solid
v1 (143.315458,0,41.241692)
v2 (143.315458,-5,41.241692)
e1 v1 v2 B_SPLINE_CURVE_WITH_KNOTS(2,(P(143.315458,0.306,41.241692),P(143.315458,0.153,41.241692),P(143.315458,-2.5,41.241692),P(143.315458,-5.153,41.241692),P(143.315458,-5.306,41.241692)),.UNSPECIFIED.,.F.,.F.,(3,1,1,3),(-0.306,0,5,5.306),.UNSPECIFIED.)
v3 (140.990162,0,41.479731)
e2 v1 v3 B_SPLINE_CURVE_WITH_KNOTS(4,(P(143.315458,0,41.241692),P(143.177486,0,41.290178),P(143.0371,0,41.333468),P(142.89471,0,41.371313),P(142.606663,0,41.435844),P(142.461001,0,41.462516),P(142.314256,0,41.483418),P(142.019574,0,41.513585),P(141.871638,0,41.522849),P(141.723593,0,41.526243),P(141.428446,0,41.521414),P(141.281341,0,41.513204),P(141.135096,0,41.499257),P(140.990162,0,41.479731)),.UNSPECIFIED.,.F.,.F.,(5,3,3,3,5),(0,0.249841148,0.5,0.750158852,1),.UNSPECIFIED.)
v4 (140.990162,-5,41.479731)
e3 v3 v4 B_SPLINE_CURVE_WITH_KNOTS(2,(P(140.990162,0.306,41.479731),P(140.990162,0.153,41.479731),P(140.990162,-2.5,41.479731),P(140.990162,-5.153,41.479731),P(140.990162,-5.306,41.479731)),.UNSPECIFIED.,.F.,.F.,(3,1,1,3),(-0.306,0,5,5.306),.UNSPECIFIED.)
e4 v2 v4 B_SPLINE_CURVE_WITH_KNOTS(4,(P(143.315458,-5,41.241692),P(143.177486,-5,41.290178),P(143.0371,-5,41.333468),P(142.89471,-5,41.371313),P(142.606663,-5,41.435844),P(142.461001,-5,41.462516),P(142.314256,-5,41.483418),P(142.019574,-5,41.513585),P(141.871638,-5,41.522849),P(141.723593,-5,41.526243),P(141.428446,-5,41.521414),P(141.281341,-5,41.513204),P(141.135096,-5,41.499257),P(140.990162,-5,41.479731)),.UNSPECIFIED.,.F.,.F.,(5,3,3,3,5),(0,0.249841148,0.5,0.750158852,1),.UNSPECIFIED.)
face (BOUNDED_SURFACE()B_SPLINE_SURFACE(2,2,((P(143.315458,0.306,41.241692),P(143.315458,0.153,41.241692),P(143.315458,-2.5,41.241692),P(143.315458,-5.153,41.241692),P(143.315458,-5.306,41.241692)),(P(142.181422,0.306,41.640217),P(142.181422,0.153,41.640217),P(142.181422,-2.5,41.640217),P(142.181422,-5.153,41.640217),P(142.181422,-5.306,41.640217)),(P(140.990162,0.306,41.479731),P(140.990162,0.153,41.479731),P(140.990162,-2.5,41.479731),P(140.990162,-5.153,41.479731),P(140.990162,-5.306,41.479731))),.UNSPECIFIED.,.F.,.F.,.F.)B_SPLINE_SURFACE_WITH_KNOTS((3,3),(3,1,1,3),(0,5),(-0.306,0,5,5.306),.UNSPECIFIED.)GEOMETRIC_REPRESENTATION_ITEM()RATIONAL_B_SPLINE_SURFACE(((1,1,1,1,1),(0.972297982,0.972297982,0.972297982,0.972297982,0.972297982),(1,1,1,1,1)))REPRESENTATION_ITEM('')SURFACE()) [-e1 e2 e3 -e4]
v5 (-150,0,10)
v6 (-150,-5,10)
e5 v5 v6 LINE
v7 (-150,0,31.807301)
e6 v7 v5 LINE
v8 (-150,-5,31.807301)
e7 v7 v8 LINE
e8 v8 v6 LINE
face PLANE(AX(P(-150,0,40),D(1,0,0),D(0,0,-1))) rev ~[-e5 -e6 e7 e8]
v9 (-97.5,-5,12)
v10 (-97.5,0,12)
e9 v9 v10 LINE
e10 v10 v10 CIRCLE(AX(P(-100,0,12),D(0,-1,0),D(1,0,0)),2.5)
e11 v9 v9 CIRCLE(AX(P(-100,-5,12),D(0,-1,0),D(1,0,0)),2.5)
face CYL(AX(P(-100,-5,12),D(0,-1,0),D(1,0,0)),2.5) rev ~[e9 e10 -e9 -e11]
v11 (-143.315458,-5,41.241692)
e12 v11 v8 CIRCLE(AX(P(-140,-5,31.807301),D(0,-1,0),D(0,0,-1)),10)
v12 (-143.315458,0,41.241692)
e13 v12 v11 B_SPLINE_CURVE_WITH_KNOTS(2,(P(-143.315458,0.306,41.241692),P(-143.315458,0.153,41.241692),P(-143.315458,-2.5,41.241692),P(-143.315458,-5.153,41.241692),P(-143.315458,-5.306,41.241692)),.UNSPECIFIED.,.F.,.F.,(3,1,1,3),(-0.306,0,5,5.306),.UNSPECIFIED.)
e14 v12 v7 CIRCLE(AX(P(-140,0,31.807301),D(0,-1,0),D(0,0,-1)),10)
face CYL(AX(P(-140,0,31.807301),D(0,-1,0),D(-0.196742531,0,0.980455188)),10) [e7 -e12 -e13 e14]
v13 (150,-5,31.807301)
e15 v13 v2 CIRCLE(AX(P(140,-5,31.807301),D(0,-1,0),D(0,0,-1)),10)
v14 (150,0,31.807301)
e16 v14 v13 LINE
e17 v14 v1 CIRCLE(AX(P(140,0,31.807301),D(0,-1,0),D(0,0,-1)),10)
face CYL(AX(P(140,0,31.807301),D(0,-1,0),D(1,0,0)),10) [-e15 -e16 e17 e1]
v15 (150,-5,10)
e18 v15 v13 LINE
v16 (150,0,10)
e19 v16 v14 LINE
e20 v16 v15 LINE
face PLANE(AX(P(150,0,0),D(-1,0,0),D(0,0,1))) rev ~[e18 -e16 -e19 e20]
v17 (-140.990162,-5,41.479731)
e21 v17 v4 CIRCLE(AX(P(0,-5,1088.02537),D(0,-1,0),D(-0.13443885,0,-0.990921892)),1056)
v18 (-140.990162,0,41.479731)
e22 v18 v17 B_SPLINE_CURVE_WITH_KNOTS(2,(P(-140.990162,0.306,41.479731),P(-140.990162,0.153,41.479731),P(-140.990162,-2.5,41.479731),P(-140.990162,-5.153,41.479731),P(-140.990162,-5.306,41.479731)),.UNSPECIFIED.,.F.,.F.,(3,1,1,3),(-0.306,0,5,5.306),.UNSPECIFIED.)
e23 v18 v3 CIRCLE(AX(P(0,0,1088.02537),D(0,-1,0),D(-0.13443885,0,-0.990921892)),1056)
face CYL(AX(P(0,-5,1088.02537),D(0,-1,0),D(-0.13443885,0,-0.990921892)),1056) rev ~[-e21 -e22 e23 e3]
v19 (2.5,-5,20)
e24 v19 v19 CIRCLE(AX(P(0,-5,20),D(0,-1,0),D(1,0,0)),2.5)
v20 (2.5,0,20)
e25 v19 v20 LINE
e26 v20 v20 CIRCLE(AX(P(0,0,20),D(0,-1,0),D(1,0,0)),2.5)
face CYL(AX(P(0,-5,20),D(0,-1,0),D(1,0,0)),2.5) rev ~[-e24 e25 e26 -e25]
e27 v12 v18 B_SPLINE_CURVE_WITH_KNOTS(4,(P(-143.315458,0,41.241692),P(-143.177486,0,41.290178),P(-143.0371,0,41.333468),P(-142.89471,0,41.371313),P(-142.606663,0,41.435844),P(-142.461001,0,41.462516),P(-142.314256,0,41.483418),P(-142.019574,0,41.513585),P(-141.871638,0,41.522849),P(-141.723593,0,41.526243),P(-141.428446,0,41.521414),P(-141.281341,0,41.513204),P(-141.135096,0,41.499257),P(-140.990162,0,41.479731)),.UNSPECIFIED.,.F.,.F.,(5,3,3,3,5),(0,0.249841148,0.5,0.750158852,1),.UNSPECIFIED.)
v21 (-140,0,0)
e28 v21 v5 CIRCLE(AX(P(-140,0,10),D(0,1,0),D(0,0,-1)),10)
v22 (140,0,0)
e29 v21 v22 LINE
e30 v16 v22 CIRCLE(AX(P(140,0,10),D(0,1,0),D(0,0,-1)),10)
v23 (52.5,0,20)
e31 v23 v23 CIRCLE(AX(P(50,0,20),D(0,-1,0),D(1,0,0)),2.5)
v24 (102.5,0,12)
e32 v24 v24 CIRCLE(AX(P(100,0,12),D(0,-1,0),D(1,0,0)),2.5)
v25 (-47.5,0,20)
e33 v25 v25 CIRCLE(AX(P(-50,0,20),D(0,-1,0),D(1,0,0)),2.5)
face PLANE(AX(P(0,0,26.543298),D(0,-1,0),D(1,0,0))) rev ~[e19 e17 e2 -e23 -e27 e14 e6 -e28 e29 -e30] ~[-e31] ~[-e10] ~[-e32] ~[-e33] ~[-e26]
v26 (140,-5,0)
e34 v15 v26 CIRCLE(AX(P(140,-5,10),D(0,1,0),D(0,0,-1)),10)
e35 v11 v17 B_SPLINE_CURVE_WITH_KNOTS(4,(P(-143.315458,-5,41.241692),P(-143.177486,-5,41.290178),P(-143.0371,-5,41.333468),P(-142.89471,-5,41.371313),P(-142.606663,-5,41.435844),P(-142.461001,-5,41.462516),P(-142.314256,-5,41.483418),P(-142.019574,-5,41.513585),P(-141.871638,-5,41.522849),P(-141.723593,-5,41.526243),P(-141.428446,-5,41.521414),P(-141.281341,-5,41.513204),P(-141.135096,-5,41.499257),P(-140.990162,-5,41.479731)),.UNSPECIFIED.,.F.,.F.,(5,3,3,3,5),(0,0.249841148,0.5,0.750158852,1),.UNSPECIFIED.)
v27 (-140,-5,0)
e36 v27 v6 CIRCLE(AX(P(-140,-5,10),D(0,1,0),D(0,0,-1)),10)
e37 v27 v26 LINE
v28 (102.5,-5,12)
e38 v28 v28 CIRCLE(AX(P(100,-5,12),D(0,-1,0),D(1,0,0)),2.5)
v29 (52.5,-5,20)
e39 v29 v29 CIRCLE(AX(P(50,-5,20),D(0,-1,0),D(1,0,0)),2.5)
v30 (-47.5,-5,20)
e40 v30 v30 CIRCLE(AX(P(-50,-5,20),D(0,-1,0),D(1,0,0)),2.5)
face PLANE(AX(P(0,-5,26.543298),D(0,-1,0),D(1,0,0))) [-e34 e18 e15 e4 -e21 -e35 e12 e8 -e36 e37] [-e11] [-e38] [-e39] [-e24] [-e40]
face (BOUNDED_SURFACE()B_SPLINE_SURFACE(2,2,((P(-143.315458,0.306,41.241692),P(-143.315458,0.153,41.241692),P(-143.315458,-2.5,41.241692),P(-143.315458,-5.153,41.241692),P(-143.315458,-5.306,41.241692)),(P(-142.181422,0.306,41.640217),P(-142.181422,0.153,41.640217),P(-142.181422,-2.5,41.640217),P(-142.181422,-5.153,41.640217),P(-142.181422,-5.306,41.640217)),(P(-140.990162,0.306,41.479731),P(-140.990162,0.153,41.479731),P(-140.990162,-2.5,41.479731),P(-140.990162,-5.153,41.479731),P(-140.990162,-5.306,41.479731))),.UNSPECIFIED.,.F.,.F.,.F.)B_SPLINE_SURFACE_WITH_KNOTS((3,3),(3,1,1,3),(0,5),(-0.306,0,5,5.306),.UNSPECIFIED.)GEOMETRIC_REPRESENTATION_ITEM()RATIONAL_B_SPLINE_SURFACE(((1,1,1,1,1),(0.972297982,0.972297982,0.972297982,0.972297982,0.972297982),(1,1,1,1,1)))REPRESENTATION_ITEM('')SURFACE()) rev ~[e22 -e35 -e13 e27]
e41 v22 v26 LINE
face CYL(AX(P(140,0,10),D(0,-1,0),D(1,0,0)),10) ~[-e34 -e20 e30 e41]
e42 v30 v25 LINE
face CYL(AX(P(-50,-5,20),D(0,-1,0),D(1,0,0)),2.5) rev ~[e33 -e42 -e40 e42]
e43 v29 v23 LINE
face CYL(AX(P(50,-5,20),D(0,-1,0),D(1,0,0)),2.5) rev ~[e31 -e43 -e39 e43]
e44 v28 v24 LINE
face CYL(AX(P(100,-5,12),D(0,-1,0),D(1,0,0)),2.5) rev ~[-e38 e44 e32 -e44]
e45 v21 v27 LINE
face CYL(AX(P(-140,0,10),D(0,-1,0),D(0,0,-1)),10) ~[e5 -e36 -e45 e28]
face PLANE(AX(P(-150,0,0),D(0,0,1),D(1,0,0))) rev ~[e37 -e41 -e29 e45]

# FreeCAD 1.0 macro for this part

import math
import FreeCAD as App
import Part
import Sketcher

V = App.Vector
Q = App.Units.Quantity


def edges_at(feature, points):
    """Names of the edges that pass closest to the given points."""
    edges = feature.Shape.Edges
    near = lambda p: min(range(len(edges)), key=lambda i: edges[i].distToShape(Part.Vertex(*p))[0])
    return sorted({f"Edge{near(p) + 1}" for p in points})

doc = App.newDocument("Part")
body = doc.addObject("PartDesign::Body", "Body")

# Sketch on XZ plane
sketch1 = doc.addObject("Sketcher::SketchObject", "Sketch")
body.addObject(sketch1)
sketch1.AttachmentSupport = (doc.XZ_Plane, [""])
sketch1.MapMode = "FlatFace"
sketch1.addGeometry(Part.LineSegment(V(-150, 0, 0), V(150, 0, 0)), False)
sketch1.addGeometry(Part.LineSegment(V(150, 0, 0), V(150, 40, 0)), False)
sketch1.addGeometry(Part.LineSegment(V(150, 40, 0), V(50, 60, 0)), False)
sketch1.addGeometry(Part.ArcOfCircle(Part.Circle(V(0, -191, 0), V(0, 0, 1), 256), math.radians(78.65), math.radians(90)), False)
sketch1.addGeometry(Part.ArcOfCircle(Part.Circle(V(0, -191, 0), V(0, 0, 1), 256), math.radians(90), math.radians(101.35)), False)
sketch1.addGeometry(Part.LineSegment(V(-50, 60, 0), V(-150, 40, 0)), False)
sketch1.addGeometry(Part.LineSegment(V(-150, 40, 0), V(-150, 0, 0)), False)
sketch1.addConstraint(Sketcher.Constraint("Coincident", 0, 2, 1, 1))
sketch1.addConstraint(Sketcher.Constraint("Coincident", 1, 2, 2, 1))
sketch1.addConstraint(Sketcher.Constraint("Tangent", 2, 2, 3, 1))
sketch1.addConstraint(Sketcher.Constraint("Tangent", 3, 2, 4, 1))
sketch1.addConstraint(Sketcher.Constraint("Tangent", 4, 2, 5, 1))
sketch1.addConstraint(Sketcher.Constraint("Coincident", 5, 2, 6, 1))
sketch1.addConstraint(Sketcher.Constraint("Coincident", 6, 2, 0, 1))
sketch1.addConstraint(Sketcher.Constraint("Horizontal", 0))
sketch1.addConstraint(Sketcher.Constraint("Vertical", 1))
sketch1.addConstraint(Sketcher.Constraint("Vertical", 6))
sketch1.addConstraint(Sketcher.Constraint("Equal", 3, 4))
sketch1.addConstraint(Sketcher.Constraint("Symmetric", 0, 2, 6, 2, -1, 1))
sketch1.addConstraint(Sketcher.Constraint("Symmetric", 2, 2, 4, 2, -2))
sketch1.addConstraint(Sketcher.Constraint("PointOnObject", 3, 2, -2))
sketch1.addConstraint(Sketcher.Constraint("DistanceX", 0, 1, 0, 2, Q("300 mm")))
sketch1.addConstraint(Sketcher.Constraint("DistanceY", 1, 1, 1, 2, Q("40 mm")))
sketch1.addConstraint(Sketcher.Constraint("DistanceY", -1, 1, 2, 2, Q("60 mm")))
sketch1.addConstraint(Sketcher.Constraint("DistanceY", -1, 1, 3, 2, Q("65 mm")))
pad1 = doc.addObject("PartDesign::Pad", "Pad")
body.addObject(pad1)
pad1.Profile = sketch1
pad1.Length = 5
doc.recompute()

fillet = doc.addObject("PartDesign::Fillet", "Fillet")
body.addObject(fillet)
fillet.Base = (pad1, edges_at(pad1, [(150, -2.5, 40), (-150, -2.5, 40)]))
fillet.Radius = 10
doc.recompute()

fillet2 = doc.addObject("PartDesign::Fillet", "Fillet001")
body.addObject(fillet2)
fillet2.Base = (fillet, edges_at(fillet, [(-150, -2.5, 0), (150, -2.5, 0)]))
fillet2.Radius = 10

# Sketch on XZ plane
sketch2 = doc.addObject("Sketcher::SketchObject", "Sketch001")
body.addObject(sketch2)
sketch2.AttachmentSupport = (doc.XZ_Plane, [""])
sketch2.MapMode = "FlatFace"
sketch2.AttachmentOffset = App.Placement(V(0, 0, 5), App.Rotation())
sketch2.addGeometry(Part.Circle(V(-50, 20, 0), V(0, 0, 1), 2.5), False)
sketch2.addGeometry(Part.Circle(V(50, 20, 0), V(0, 0, 1), 2.5), False)
sketch2.addGeometry(Part.Circle(V(0, 20, 0), V(0, 0, 1), 2.5), False)
sketch2.addConstraint(Sketcher.Constraint("Equal", 0, 1))
sketch2.addConstraint(Sketcher.Constraint("Equal", 1, 2))
sketch2.addConstraint(Sketcher.Constraint("Symmetric", 0, 3, 1, 3, -2))
sketch2.addConstraint(Sketcher.Constraint("PointOnObject", 2, 3, -2))
sketch2.addConstraint(Sketcher.Constraint("Horizontal", 1, 3, 2, 3))
sketch2.addConstraint(Sketcher.Constraint("Diameter", 0, Q("5 mm")))
sketch2.addConstraint(Sketcher.Constraint("DistanceX", 0, 3, -1, 1, Q("50 mm")))
sketch2.addConstraint(Sketcher.Constraint("DistanceY", -1, 1, 0, 3, Q("20 mm")))
pocket1 = doc.addObject("PartDesign::Pocket", "Pocket")
body.addObject(pocket1)
pocket1.Profile = sketch2
pocket1.Length = 25

# Sketch on XZ plane
sketch3 = doc.addObject("Sketcher::SketchObject", "Sketch002")
body.addObject(sketch3)
sketch3.AttachmentSupport = (doc.XZ_Plane, [""])
sketch3.MapMode = "FlatFace"
sketch3.AttachmentOffset = App.Placement(V(0, 0, 5), App.Rotation())
sketch3.addGeometry(Part.Circle(V(-100, 12, 0), V(0, 0, 1), 2.5), False)
sketch3.addGeometry(Part.Circle(V(100, 12, 0), V(0, 0, 1), 2.5), False)
sketch3.addGeometry(Part.Circle(V(50, 20, 0), V(0, 0, 1), 2.5), False)
sketch3.addConstraint(Sketcher.Constraint("Equal", 0, 1))
sketch3.addConstraint(Sketcher.Constraint("Equal", 1, 2))
sketch3.addConstraint(Sketcher.Constraint("Symmetric", 0, 3, 1, 3, -2))
sketch3.addConstraint(Sketcher.Constraint("Diameter", 0, Q("5 mm")))
sketch3.addConstraint(Sketcher.Constraint("DistanceX", 0, 3, -1, 1, Q("100 mm")))
sketch3.addConstraint(Sketcher.Constraint("DistanceY", -1, 1, 0, 3, Q("12 mm")))
sketch3.addConstraint(Sketcher.Constraint("DistanceX", -1, 1, 2, 3, Q("50 mm")))
sketch3.addConstraint(Sketcher.Constraint("DistanceY", -1, 1, 2, 3, Q("20 mm")))
pocket2 = doc.addObject("PartDesign::Pocket", "Pocket001")
body.addObject(pocket2)
pocket2.Profile = sketch3
pocket2.Length = 25

# Sketch on XZ plane
sketch4 = doc.addObject("Sketcher::SketchObject", "Sketch003")
body.addObject(sketch4)
sketch4.AttachmentSupport = (doc.XZ_Plane, [""])
sketch4.MapMode = "FlatFace"
sketch4.AttachmentOffset = App.Placement(V(0, 0, 5), App.Rotation())
sketch4.addGeometry(Part.LineSegment(V(-142, 77, 0), V(-142, 42, 0)), False)
sketch4.addGeometry(Part.ArcOfCircle(Part.Circle(V(0, 1088, 0), V(0, 0, 1), 1056), math.radians(-97.73), math.radians(-82.27)), False)
sketch4.addGeometry(Part.LineSegment(V(142, 42, 0), V(142, 77, 0)), False)
sketch4.addGeometry(Part.LineSegment(V(142, 77, 0), V(-142, 77, 0)), False)
sketch4.addConstraint(Sketcher.Constraint("Coincident", 0, 2, 1, 1))
sketch4.addConstraint(Sketcher.Constraint("Coincident", 1, 2, 2, 1))
sketch4.addConstraint(Sketcher.Constraint("Coincident", 2, 2, 3, 1))
sketch4.addConstraint(Sketcher.Constraint("Coincident", 3, 2, 0, 1))
sketch4.addConstraint(Sketcher.Constraint("Vertical", 0))
sketch4.addConstraint(Sketcher.Constraint("Vertical", 2))
sketch4.addConstraint(Sketcher.Constraint("Horizontal", 3))
sketch4.addConstraint(Sketcher.Constraint("PointOnObject", 1, 3, -2))
sketch4.addConstraint(Sketcher.Constraint("Equal", 0, 2))
sketch4.addConstraint(Sketcher.Constraint("Radius", 1, Q("1056 mm")))
sketch4.addConstraint(Sketcher.Constraint("DistanceX", 3, 2, 3, 1, Q("283.934851 mm")))
sketch4.addConstraint(Sketcher.Constraint("DistanceY", 0, 2, 0, 1, Q("35.088932 mm")))
sketch4.addConstraint(Sketcher.Constraint("DistanceY", -1, 1, 1, 3, Q("1088.02537 mm")))
pocket3 = doc.addObject("PartDesign::Pocket", "Pocket002")
body.addObject(pocket3)
pocket3.Profile = sketch4
pocket3.Length = 25
doc.recompute()

fillet3 = doc.addObject("PartDesign::Fillet", "Fillet002")
body.addObject(fillet3)
fillet3.Base = (pocket3, edges_at(pocket3, [(-141.967, -2.5, 41.612), (141.967, -2.5, 41.612)]))
fillet3.Radius = 5

doc.recompute()
